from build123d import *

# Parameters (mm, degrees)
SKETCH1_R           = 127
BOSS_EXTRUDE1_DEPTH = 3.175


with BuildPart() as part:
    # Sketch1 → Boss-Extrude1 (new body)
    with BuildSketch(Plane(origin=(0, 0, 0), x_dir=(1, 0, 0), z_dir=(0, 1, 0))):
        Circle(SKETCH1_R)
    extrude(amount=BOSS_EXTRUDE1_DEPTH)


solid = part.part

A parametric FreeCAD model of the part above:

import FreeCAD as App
import Part
import Sketcher

V = App.Vector
Q = App.Units.Quantity

doc = App.newDocument("Part")
body = doc.addObject("PartDesign::Body", "Body")

sketch1 = doc.addObject("Sketcher::SketchObject", "Sketch")
body.addObject(sketch1)
sketch1.AttachmentSupport = (doc.XZ_Plane, [""])
sketch1.MapMode = "FlatFace"
sketch1.addGeometry(Part.Circle(V(0, 0, 0), V(0, 0, 1), 127), False)
sketch1.addConstraint(Sketcher.Constraint("Coincident", 0, 3, -1, 1))
sketch1.addConstraint(Sketcher.Constraint("Diameter", 0, Q("10 in")))
pad1 = doc.addObject("PartDesign::Pad", "Pad")
body.addObject(pad1)
pad1.Profile = sketch1
pad1.Length = Q("0.125 in")
pad1.Reversed = True

doc.recompute()
